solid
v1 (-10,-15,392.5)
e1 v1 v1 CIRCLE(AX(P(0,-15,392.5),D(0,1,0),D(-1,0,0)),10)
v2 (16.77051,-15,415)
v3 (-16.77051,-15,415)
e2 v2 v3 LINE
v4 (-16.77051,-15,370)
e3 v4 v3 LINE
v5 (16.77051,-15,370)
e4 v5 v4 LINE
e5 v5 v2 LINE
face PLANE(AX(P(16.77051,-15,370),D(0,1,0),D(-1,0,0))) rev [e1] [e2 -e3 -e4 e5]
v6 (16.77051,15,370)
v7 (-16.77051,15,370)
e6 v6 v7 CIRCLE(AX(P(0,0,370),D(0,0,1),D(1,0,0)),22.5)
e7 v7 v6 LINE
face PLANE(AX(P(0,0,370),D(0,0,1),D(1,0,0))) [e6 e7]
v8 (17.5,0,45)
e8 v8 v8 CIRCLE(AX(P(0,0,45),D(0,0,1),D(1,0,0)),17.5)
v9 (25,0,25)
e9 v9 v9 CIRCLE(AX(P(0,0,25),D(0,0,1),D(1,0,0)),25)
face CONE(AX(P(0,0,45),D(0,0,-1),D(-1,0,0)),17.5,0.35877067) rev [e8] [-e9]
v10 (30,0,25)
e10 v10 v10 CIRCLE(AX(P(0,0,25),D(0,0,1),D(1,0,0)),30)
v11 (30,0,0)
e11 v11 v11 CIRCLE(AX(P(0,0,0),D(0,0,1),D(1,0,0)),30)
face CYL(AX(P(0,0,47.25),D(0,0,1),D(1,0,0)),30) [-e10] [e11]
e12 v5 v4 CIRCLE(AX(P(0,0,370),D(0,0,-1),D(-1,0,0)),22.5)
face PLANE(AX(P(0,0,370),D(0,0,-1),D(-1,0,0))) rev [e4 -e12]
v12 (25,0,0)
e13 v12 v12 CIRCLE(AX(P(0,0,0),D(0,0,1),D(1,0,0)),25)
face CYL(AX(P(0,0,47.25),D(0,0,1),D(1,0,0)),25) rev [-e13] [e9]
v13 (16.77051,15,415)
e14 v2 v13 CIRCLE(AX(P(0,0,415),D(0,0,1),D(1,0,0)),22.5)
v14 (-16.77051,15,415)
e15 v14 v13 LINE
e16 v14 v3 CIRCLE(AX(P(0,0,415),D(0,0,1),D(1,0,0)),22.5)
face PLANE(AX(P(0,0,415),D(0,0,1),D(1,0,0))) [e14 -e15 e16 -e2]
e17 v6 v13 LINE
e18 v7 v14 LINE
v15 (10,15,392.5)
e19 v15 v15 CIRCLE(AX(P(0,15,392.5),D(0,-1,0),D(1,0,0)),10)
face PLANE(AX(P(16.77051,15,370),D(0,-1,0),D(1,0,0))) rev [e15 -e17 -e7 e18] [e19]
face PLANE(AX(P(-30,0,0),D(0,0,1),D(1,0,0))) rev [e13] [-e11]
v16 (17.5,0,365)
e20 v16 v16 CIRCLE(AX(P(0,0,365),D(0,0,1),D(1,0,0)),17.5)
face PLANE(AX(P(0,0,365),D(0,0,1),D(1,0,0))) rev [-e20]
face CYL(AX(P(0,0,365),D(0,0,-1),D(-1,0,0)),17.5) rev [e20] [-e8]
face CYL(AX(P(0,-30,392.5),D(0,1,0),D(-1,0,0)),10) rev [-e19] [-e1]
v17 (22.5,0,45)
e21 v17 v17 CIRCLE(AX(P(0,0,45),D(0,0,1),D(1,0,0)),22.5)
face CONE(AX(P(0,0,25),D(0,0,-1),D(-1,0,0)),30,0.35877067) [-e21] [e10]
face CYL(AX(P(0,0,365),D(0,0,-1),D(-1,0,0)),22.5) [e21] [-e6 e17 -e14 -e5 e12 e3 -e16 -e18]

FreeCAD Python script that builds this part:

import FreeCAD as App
import Part
import Sketcher
from FreeCAD import Vector

doc = App.newDocument("Part")
body = doc.addObject("PartDesign::Body", "Body")

sketch1 = body.newObject("Sketcher::SketchObject", "Sketch")
sketch1.AttachmentSupport = (doc.getObject("XZ_Plane"), [""])
sketch1.MapMode = "FlatFace"
sketch1.addGeometry([
    Part.LineSegment(Vector(-30, 0, 0), Vector(-30, 25, 0)),
    Part.LineSegment(Vector(-30, 25, 0), Vector(-22, 45, 0)),
    Part.LineSegment(Vector(-22, 45, 0), Vector(-18, 45, 0)),
    Part.LineSegment(Vector(-18, 45, 0), Vector(-25, 25, 0)),
    Part.LineSegment(Vector(-25, 25, 0), Vector(-25, 0, 0)),
    Part.LineSegment(Vector(-25, 0, 0), Vector(-30, 0, 0)),
], False)
sketch1.addConstraint([
    Sketcher.Constraint("Coincident", 0, 2, 1, 1),
    Sketcher.Constraint("Coincident", 1, 2, 2, 1),
    Sketcher.Constraint("Coincident", 2, 2, 3, 1),
    Sketcher.Constraint("Coincident", 3, 2, 4, 1),
    Sketcher.Constraint("Coincident", 4, 2, 5, 1),
    Sketcher.Constraint("Coincident", 5, 2, 0, 1),
    Sketcher.Constraint("Vertical", 0),
    Sketcher.Constraint("Horizontal", 2),
    Sketcher.Constraint("Vertical", 4),
    Sketcher.Constraint("Horizontal", 5),
    Sketcher.Constraint("PointOnObject", 4, 2, -1),
    Sketcher.Constraint("Parallel", 1, 3),
    Sketcher.Constraint("Horizontal", 0, 2, 3, 2),
    Sketcher.Constraint("DistanceX", 2, 1, 2, 2, 5.0),
    Sketcher.Constraint("DistanceY", 0, 1, 0, 2, 25.0),
    Sketcher.Constraint("DistanceX", 0, 2, -1, 1, 30.0),
    Sketcher.Constraint("DistanceY", -1, 1, 1, 2, 45.0),
    Sketcher.Constraint("DistanceX", 1, 2, -1, 1, 22.5),
])
revolution = body.newObject("PartDesign::Revolution", "Revolution")
revolution.Profile = sketch1
revolution.ReferenceAxis = (sketch1, ["V_Axis"])
revolution.Angle = 360

sketch2 = body.newObject("Sketcher::SketchObject", "Sketch001")
sketch2.AttachmentSupport = (doc.getObject("XY_Plane"), [""])
sketch2.MapMode = "FlatFace"
sketch2.AttachmentOffset = App.Placement(Vector(0, 0, 45), App.Rotation())
sketch2.addGeometry([
    Part.Circle(Vector(0, 0, 0), Vector(0, 0, 1), 22),
    Part.Circle(Vector(0, 0, 0), Vector(0, 0, 1), 18),
], False)
sketch2.addConstraint([
    Sketcher.Constraint("Coincident", 0, 3, -1, 1),
    Sketcher.Constraint("Coincident", 1, 3, -1, 1),
    Sketcher.Constraint("Diameter", 0, 45.0),
    Sketcher.Constraint("Diameter", 1, 35.0),
])
pad1 = body.newObject("PartDesign::Pad", "Pad")
pad1.Profile = sketch2
pad1.Length = 320

sketch3 = body.newObject("Sketcher::SketchObject", "Sketch002")
sketch3.AttachmentSupport = (doc.getObject("XY_Plane"), [""])
sketch3.MapMode = "FlatFace"
sketch3.AttachmentOffset = App.Placement(Vector(0, 0, 365), App.Rotation())
sketch3.addGeometry(Part.Circle(Vector(0, 0, 0), Vector(0, 0, 1), 22), False)
sketch3.addConstraint([
    Sketcher.Constraint("Coincident", 0, 3, -1, 1),
    Sketcher.Constraint("Diameter", 0, 45.0),
])
pad2 = body.newObject("PartDesign::Pad", "Pad001")
pad2.Profile = sketch3
pad2.Length = 50

sketch4 = body.newObject("Sketcher::SketchObject", "Sketch003")
sketch4.AttachmentSupport = (doc.getObject("XY_Plane"), [""])
sketch4.MapMode = "FlatFace"
sketch4.AttachmentOffset = App.Placement(Vector(0, 0, 415), App.Rotation())
sketch4.addGeometry([
    Part.LineSegment(Vector(-17, 35, 0), Vector(-17, 15, 0)),
    Part.LineSegment(Vector(-17, 15, 0), Vector(17, 15, 0)),
    Part.LineSegment(Vector(17, 15, 0), Vector(17, 35, 0)),
    Part.LineSegment(Vector(17, 35, 0), Vector(-17, 35, 0)),
    Part.LineSegment(Vector(-17, -15, 0), Vector(-17, -35, 0)),
    Part.LineSegment(Vector(-17, -35, 0), Vector(17, -35, 0)),
    Part.LineSegment(Vector(17, -35, 0), Vector(17, -15, 0)),
    Part.LineSegment(Vector(17, -15, 0), Vector(-17, -15, 0)),
], False)
sketch4.addConstraint([
    Sketcher.Constraint("Coincident", 0, 2, 1, 1),
    Sketcher.Constraint("Coincident", 1, 2, 2, 1),
    Sketcher.Constraint("Coincident", 2, 2, 3, 1),
    Sketcher.Constraint("Coincident", 3, 2, 0, 1),
    Sketcher.Constraint("Coincident", 4, 2, 5, 1),
    Sketcher.Constraint("Coincident", 5, 2, 6, 1),
    Sketcher.Constraint("Coincident", 6, 2, 7, 1),
    Sketcher.Constraint("Coincident", 7, 2, 4, 1),
    Sketcher.Constraint("Vertical", 0),
    Sketcher.Constraint("Horizontal", 1),
    Sketcher.Constraint("Vertical", 2),
    Sketcher.Constraint("Horizontal", 3),
    Sketcher.Constraint("Vertical", 4),
    Sketcher.Constraint("Horizontal", 5),
    Sketcher.Constraint("Vertical", 6),
    Sketcher.Constraint("Horizontal", 7),
    Sketcher.Constraint("Symmetric", 2, 2, 4, 2, -1, 1),
    Sketcher.Constraint("Symmetric", 0, 2, 6, 2, -1, 1),
    Sketcher.Constraint("Vertical", 3, 2, 4, 2),
    Sketcher.Constraint("DistanceY", 0, 2, 0, 1, 20.0),
    Sketcher.Constraint("DistanceY", -1, 1, 0, 2, 15.0),
    Sketcher.Constraint("DistanceX", 1, 1, 1, 2, 33.54102),
])
pocket1 = body.newObject("PartDesign::Pocket", "Pocket")
pocket1.Profile = sketch4
pocket1.Length = 45

sketch5 = body.newObject("Sketcher::SketchObject", "Sketch004")
sketch5.AttachmentSupport = (doc.getObject("XZ_Plane"), [""])
sketch5.MapMode = "FlatFace"
sketch5.AttachmentOffset = App.Placement(Vector(0, 0, -15), App.Rotation())
sketch5.addGeometry(Part.Circle(Vector(0, 392, 0), Vector(0, 0, 1), 10), False)
sketch5.addConstraint([
    Sketcher.Constraint("PointOnObject", 0, 3, -2),
    Sketcher.Constraint("Diameter", 0, 20.0),
    Sketcher.Constraint("DistanceY", -1, 1, 0, 3, 392.5),
])
pocket2 = body.newObject("PartDesign::Pocket", "Pocket001")
pocket2.Profile = sketch5
pocket2.Type = "ThroughAll"
pocket2.Midplane = True

doc.recompute()
